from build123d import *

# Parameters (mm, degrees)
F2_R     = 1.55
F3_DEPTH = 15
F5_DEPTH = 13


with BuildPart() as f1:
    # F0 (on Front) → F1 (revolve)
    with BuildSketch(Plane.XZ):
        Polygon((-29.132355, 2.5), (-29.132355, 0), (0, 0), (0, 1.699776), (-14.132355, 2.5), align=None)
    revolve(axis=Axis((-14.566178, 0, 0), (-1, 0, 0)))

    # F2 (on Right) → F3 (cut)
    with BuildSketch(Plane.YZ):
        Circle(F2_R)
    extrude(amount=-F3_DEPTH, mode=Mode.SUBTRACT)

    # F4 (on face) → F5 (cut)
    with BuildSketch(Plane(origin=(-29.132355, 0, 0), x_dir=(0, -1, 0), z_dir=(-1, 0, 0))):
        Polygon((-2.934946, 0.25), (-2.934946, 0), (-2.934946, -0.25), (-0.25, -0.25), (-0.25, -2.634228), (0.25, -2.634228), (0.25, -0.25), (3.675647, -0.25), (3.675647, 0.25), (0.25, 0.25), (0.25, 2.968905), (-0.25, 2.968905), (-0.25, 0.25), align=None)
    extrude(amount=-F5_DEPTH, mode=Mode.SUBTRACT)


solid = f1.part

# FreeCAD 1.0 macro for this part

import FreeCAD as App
import Part
import Sketcher

V = App.Vector
Q = App.Units.Quantity


def add_polygon(sketch, points):
    """Adds a closed chain of lines whose ends are joined by coincident constraints."""
    first, n = sketch.GeometryCount, len(points)
    for a, b in zip(points, points[1:] + points[:1]):
        sketch.addGeometry(Part.LineSegment(App.Vector(*a, 0), App.Vector(*b, 0)), False)
    for i in range(n):
        sketch.addConstraint(Sketcher.Constraint("Coincident", first + i, 2, first + (i + 1) % n, 1))

doc = App.newDocument("Part")
body = doc.addObject("PartDesign::Body", "Body")

# Sketch on XZ plane
sketch1 = body.newObject("Sketcher::SketchObject", "Sketch")
sketch1.AttachmentSupport = (doc.getObject("XZ_Plane"), [""])
sketch1.MapMode = "FlatFace"
add_polygon(sketch1, [(-29.132355, 2.5), (-29.132355, 0), (0, 0), (0, 1.699776), (-14.132355, 2.5)])  # lines 0-4
sketch1.addConstraint(Sketcher.Constraint("Vertical", 0))
sketch1.addConstraint(Sketcher.Constraint("Horizontal", 1))
sketch1.addConstraint(Sketcher.Constraint("Vertical", 2))
sketch1.addConstraint(Sketcher.Constraint("Horizontal", 4))
sketch1.addConstraint(Sketcher.Constraint("Coincident", 1, 2, -1, 1))
sketch1.addConstraint(Sketcher.Constraint("DistanceX", 4, 2, 4, 1, Q("15 mm")))
sketch1.addConstraint(Sketcher.Constraint("DistanceY", 0, 2, 0, 1, Q("2.5 mm")))
sketch1.addConstraint(Sketcher.Constraint("DistanceX", 1, 1, 1, 2, Q("29.132355 mm")))
sketch1.addConstraint(Sketcher.Constraint("DistanceY", 2, 1, 2, 2, Q("1.699776 mm")))
revolution = body.newObject("PartDesign::Revolution", "Revolution")
revolution.Profile = sketch1
revolution.ReferenceAxis = (sketch1, ["H_Axis"])
revolution.Angle = 360

# Sketch on YZ plane
sketch2 = body.newObject("Sketcher::SketchObject", "Sketch001")
sketch2.AttachmentSupport = (doc.getObject("YZ_Plane"), [""])
sketch2.MapMode = "FlatFace"
sketch2.addGeometry(Part.Circle(V(0, 0, 0), V(0, 0, 1), 1.55), False)
sketch2.addConstraint(Sketcher.Constraint("Coincident", 0, 3, -1, 1))
sketch2.addConstraint(Sketcher.Constraint("Diameter", 0, Q("3.1 mm")))
pocket1 = body.newObject("PartDesign::Pocket", "Pocket")
pocket1.Profile = sketch2
pocket1.Length = 15

# Sketch on YZ plane
sketch3 = body.newObject("Sketcher::SketchObject", "Sketch002")
sketch3.AttachmentSupport = (doc.getObject("YZ_Plane"), [""])
sketch3.MapMode = "FlatFace"
sketch3.AttachmentOffset = App.Placement(V(0, 0, -29.132355), App.Rotation())
add_polygon(sketch3, [(2.934946, 0.25), (2.934946, -0.25), (0.25, -0.25), (0.25, -2.634228), (-0.25, -2.634228), (-0.25, -0.25), (-3.675647, -0.25), (-3.675647, 0.25), (-0.25, 0.25), (-0.25, 2.968905), (0.25, 2.968905), (0.25, 0.25)])  # lines 0-11
sketch3.addConstraint(Sketcher.Constraint("Vertical", 0))
sketch3.addConstraint(Sketcher.Constraint("Horizontal", 1))
sketch3.addConstraint(Sketcher.Constraint("Vertical", 2))
sketch3.addConstraint(Sketcher.Constraint("Horizontal", 3))
sketch3.addConstraint(Sketcher.Constraint("Vertical", 4))
sketch3.addConstraint(Sketcher.Constraint("Horizontal", 5))
sketch3.addConstraint(Sketcher.Constraint("Vertical", 6))
sketch3.addConstraint(Sketcher.Constraint("Horizontal", 7))
sketch3.addConstraint(Sketcher.Constraint("Vertical", 8))
sketch3.addConstraint(Sketcher.Constraint("Horizontal", 9))
sketch3.addConstraint(Sketcher.Constraint("Vertical", 10))
sketch3.addConstraint(Sketcher.Constraint("Horizontal", 11))
sketch3.addConstraint(Sketcher.Constraint("Symmetric", 1, 2, 7, 2, -1, 1))
sketch3.addConstraint(Sketcher.Constraint("Symmetric", 4, 2, 10, 2, -1, 1))
sketch3.addConstraint(Sketcher.Constraint("Symmetric", 1, 2, 4, 2, -2))
sketch3.addConstraint(Sketcher.Constraint("Equal", 9, 0))
sketch3.addConstraint(Sketcher.Constraint("DistanceX", 3, 2, 3, 1, Q("0.5 mm")))
sketch3.addConstraint(Sketcher.Constraint("DistanceX", 1, 2, 1, 1, Q("2.684946 mm")))
sketch3.addConstraint(Sketcher.Constraint("DistanceX", 5, 2, 5, 1, Q("3.425647 mm")))
sketch3.addConstraint(Sketcher.Constraint("DistanceY", 2, 2, 2, 1, Q("2.384228 mm")))
sketch3.addConstraint(Sketcher.Constraint("DistanceY", 8, 1, 8, 2, Q("2.718905 mm")))
pocket2 = body.newObject("PartDesign::Pocket", "Pocket001")
pocket2.Profile = sketch3
pocket2.Length = 13
pocket2.Reversed = True

doc.recompute()
